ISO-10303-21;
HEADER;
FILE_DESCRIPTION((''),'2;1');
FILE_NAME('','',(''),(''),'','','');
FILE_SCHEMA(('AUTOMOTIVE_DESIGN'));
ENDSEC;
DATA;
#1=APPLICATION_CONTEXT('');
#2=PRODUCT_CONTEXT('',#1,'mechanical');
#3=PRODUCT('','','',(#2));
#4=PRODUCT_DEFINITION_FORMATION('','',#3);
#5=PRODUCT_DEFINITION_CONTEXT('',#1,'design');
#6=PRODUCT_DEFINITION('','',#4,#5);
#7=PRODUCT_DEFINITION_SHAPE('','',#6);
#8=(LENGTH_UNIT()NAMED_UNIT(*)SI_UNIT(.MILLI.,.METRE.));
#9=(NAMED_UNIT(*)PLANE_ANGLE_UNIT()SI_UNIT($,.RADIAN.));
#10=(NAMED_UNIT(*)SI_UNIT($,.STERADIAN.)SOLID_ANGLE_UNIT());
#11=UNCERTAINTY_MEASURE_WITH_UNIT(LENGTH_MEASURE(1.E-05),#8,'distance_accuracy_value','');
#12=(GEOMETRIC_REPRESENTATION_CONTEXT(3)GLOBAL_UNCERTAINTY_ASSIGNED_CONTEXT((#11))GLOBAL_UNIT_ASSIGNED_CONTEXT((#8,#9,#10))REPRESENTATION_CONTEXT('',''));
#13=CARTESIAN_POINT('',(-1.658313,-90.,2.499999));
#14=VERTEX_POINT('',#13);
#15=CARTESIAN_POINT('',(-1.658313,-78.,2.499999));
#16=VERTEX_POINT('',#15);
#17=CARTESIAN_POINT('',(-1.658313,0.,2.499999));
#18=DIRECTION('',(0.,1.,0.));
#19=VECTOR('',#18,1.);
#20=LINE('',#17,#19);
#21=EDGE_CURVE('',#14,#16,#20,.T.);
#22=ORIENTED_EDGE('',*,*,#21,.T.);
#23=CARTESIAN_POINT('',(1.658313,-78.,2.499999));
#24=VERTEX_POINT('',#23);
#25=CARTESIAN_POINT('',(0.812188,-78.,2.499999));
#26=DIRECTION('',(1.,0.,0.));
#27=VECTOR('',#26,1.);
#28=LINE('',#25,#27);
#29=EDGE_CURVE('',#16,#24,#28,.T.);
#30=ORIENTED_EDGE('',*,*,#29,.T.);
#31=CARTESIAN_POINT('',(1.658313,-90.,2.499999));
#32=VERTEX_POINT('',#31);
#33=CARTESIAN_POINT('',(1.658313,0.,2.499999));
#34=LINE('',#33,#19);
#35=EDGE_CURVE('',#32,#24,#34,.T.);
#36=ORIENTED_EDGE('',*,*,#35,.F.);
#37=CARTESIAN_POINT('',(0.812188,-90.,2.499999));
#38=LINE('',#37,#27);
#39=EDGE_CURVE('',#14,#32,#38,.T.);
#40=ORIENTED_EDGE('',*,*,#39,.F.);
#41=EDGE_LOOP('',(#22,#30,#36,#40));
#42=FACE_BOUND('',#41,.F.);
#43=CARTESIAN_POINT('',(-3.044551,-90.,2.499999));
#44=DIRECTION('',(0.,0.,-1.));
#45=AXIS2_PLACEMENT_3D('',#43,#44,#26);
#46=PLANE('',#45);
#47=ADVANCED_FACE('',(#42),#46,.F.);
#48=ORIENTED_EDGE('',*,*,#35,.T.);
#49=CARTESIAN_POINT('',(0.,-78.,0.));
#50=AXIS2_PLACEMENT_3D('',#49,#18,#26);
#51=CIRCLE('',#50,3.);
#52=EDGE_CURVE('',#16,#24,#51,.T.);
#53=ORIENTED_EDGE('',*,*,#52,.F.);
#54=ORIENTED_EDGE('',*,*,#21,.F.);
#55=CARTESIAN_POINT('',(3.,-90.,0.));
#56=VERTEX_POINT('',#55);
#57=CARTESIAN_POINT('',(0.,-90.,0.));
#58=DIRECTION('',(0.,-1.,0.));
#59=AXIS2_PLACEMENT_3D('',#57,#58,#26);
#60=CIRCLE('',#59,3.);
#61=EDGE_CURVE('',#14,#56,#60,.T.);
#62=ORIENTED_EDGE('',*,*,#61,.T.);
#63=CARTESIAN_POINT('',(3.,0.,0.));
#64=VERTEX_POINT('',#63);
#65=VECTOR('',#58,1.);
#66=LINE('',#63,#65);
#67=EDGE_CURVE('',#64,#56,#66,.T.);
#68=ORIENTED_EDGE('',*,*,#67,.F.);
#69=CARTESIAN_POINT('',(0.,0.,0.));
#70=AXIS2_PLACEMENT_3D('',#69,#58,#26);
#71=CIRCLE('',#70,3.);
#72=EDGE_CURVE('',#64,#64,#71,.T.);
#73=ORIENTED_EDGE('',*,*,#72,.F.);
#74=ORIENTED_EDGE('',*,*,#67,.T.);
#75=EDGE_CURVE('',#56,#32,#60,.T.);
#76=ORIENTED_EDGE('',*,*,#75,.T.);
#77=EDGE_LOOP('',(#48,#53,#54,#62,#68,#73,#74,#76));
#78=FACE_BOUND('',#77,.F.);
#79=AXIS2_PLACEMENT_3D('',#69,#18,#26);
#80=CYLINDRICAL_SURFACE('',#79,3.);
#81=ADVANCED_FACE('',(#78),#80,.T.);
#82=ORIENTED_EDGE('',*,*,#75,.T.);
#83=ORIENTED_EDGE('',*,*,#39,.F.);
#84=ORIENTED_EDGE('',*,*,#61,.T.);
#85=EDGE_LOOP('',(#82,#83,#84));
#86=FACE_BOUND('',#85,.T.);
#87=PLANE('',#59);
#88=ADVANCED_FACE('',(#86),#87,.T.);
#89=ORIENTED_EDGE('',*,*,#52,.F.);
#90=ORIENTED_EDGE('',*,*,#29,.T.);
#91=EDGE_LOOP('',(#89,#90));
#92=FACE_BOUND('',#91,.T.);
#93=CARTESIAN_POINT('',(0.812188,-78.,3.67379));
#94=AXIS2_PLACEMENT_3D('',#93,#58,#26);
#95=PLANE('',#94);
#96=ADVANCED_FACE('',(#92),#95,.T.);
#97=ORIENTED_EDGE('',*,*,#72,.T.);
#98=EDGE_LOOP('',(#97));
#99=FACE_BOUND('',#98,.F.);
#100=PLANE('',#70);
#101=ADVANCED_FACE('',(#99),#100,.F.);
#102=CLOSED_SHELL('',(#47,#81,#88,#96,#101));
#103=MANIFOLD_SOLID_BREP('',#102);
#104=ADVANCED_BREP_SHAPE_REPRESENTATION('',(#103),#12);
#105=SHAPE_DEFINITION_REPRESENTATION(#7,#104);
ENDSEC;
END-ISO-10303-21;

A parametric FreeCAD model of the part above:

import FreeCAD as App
import Part
import Sketcher
Q = App.Units.Quantity

doc = App.newDocument("Part")
body = doc.addObject("PartDesign::Body", "Body")

# Sketch on XZ plane
sketch1 = body.newObject("Sketcher::SketchObject", "Sketch")
sketch1.AttachmentSupport = (doc.getObject("XZ_Plane"), [""])
sketch1.MapMode = "FlatFace"
sketch1.addGeometry(Part.Circle(App.Vector(0, 0, 0), App.Vector(0, 0, 1), 3), False)
sketch1.addConstraint(Sketcher.Constraint("Coincident", 0, 3, -1, 1))
sketch1.addConstraint(Sketcher.Constraint("Diameter", 0, Q("6 mm")))
pad1 = body.newObject("PartDesign::Pad", "Pad")
pad1.Profile = sketch1
pad1.Length = 90

# Sketch on XZ plane
sketch2 = body.newObject("Sketcher::SketchObject", "Sketch001")
sketch2.AttachmentSupport = (doc.getObject("XZ_Plane"), [""])
sketch2.MapMode = "FlatFace"
sketch2.AttachmentOffset = App.Placement(App.Vector(0, 0, 90), App.Rotation())
sketch2.addGeometry(Part.LineSegment(App.Vector(-3.044551, 4.847581, 0), App.Vector(-3.044551, 2.499999, 0)), False)
sketch2.addGeometry(Part.LineSegment(App.Vector(-3.044551, 2.499999, 0), App.Vector(4.668927, 2.499999, 0)), False)
sketch2.addGeometry(Part.LineSegment(App.Vector(4.668927, 2.499999, 0), App.Vector(4.668927, 4.847581, 0)), False)
sketch2.addGeometry(Part.LineSegment(App.Vector(4.668927, 4.847581, 0), App.Vector(-3.044551, 4.847581, 0)), False)
sketch2.addConstraint(Sketcher.Constraint("Coincident", 0, 2, 1, 1))
sketch2.addConstraint(Sketcher.Constraint("Coincident", 1, 2, 2, 1))
sketch2.addConstraint(Sketcher.Constraint("Coincident", 2, 2, 3, 1))
sketch2.addConstraint(Sketcher.Constraint("Coincident", 3, 2, 0, 1))
sketch2.addConstraint(Sketcher.Constraint("Vertical", 0))
sketch2.addConstraint(Sketcher.Constraint("Horizontal", 1))
sketch2.addConstraint(Sketcher.Constraint("Vertical", 2))
sketch2.addConstraint(Sketcher.Constraint("Horizontal", 3))
sketch2.addConstraint(Sketcher.Constraint("DistanceY", -1, 1, 0, 2, Q("2.499999 mm")))
sketch2.addConstraint(Sketcher.Constraint("DistanceX", 1, 1, 1, 2, Q("7.713479 mm")))
sketch2.addConstraint(Sketcher.Constraint("DistanceY", 0, 2, 0, 1, Q("2.347581 mm")))
sketch2.addConstraint(Sketcher.Constraint("DistanceX", 0, 2, -1, 1, Q("3.044551 mm")))
pocket1 = body.newObject("PartDesign::Pocket", "Pocket")
pocket1.Profile = sketch2
pocket1.Length = 12

doc.recompute()
